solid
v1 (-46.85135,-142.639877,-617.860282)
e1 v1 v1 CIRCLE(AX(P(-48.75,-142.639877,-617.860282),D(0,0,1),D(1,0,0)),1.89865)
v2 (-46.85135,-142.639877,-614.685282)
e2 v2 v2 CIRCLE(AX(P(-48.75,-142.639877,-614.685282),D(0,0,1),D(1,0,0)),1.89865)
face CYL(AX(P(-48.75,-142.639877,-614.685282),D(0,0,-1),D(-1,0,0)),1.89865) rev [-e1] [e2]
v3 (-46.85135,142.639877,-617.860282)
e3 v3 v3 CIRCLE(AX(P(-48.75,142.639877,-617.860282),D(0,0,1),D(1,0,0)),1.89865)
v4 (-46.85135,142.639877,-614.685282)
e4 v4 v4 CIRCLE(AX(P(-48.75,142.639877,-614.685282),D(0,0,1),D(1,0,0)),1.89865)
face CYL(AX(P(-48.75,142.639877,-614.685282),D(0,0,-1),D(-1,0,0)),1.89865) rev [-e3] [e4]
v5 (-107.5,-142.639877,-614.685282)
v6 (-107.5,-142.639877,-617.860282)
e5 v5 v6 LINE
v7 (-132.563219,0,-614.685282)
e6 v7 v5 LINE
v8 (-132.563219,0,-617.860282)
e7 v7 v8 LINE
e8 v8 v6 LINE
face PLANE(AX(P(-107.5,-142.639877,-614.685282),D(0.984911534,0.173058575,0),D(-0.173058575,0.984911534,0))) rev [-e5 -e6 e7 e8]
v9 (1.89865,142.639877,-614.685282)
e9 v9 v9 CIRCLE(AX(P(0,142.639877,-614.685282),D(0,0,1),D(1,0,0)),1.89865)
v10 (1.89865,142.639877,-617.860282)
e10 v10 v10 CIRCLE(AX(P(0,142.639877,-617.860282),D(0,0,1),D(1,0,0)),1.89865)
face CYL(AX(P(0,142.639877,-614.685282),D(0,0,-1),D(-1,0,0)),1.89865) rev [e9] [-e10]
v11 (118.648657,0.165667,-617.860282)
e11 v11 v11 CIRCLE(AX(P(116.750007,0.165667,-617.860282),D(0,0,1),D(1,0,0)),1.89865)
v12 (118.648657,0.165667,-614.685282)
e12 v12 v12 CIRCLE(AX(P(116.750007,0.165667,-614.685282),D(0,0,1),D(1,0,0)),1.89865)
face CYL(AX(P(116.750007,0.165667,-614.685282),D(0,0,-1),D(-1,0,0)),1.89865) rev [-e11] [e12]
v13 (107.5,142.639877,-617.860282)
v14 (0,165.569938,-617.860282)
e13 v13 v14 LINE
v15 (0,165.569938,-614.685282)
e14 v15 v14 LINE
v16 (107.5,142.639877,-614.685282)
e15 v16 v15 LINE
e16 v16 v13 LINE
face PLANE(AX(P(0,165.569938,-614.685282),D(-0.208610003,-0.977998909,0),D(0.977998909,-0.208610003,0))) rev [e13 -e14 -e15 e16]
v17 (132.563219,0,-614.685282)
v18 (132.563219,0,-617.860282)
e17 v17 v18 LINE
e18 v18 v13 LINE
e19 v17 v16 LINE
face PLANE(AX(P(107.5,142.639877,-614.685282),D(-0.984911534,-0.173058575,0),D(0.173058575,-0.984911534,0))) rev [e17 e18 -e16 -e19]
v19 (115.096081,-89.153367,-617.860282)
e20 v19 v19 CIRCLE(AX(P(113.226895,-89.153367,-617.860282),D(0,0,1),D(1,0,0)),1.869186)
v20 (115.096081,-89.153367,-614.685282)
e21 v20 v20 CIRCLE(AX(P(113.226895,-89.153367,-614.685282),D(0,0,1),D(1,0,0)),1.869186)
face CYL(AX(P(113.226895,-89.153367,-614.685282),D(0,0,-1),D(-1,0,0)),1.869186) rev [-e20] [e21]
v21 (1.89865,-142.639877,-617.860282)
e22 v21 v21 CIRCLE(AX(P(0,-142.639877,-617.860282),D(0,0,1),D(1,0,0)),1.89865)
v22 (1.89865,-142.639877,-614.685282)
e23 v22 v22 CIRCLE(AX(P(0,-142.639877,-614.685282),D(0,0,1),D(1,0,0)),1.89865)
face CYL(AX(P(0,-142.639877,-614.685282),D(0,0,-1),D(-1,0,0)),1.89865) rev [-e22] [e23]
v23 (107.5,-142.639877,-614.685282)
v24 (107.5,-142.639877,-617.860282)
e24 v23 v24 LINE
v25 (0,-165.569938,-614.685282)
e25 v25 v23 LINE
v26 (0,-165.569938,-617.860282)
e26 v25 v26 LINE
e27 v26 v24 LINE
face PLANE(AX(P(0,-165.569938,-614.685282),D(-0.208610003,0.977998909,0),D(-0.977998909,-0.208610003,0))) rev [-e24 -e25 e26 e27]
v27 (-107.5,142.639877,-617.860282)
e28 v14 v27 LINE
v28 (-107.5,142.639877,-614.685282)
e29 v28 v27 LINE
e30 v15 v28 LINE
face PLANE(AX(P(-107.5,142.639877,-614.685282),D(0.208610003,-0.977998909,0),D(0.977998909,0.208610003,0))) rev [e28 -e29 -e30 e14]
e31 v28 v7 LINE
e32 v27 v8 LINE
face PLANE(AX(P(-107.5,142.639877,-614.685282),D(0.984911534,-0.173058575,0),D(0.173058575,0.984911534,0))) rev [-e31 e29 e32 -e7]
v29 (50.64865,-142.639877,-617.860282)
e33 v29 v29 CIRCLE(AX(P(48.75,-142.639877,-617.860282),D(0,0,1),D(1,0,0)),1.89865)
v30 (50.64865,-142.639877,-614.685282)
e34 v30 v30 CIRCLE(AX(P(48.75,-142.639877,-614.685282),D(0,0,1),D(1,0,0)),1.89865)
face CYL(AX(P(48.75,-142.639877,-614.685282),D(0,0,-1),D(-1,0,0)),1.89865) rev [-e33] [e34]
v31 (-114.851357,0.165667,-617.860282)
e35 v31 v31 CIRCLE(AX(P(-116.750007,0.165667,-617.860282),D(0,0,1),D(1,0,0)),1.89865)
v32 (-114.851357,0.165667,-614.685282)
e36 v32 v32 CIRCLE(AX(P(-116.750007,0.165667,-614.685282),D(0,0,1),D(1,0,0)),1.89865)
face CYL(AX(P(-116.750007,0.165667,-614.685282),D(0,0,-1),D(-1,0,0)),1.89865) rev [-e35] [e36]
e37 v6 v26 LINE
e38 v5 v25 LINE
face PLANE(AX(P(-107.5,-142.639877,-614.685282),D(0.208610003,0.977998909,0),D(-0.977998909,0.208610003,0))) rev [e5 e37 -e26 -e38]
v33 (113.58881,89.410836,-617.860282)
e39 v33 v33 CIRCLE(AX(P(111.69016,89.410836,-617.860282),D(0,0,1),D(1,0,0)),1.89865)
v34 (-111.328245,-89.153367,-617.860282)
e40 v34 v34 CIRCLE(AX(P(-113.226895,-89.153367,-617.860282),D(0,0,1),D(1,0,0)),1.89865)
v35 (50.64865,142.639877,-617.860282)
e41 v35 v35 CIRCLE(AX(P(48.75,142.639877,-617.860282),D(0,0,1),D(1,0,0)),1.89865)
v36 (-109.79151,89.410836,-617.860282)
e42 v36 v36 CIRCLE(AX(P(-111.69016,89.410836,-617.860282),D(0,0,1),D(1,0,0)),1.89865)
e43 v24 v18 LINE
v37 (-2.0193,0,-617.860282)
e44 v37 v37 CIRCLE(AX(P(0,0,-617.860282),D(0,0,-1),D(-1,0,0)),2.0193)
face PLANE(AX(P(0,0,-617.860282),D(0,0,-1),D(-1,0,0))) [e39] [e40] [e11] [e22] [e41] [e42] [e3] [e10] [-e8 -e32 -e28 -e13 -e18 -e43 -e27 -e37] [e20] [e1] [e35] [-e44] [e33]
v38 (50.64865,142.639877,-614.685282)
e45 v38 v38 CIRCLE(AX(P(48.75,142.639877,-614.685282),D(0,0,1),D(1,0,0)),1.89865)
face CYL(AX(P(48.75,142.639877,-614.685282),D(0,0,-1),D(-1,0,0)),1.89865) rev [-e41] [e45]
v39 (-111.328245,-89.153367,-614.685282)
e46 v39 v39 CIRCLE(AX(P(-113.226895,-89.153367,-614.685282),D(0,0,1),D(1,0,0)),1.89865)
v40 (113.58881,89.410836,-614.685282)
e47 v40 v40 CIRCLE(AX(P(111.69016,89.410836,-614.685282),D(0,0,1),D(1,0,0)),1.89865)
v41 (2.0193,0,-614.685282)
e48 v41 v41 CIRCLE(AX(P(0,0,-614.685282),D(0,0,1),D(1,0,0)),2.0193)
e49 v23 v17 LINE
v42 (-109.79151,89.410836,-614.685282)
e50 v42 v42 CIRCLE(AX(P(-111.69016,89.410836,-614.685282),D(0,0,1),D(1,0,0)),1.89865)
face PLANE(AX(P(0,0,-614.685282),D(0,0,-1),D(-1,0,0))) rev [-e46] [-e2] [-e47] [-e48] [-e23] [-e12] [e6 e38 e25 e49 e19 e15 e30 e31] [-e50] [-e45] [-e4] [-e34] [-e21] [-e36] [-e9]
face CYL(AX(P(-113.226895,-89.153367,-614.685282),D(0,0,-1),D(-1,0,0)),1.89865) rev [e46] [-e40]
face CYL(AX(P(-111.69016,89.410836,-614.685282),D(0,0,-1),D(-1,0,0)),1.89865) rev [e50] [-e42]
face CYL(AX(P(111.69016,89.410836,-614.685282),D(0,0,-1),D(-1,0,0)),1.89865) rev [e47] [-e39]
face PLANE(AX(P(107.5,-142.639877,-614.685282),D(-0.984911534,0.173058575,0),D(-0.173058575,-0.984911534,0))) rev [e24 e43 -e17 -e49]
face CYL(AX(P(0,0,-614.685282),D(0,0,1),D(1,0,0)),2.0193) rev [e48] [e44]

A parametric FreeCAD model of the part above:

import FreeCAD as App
import Part
import Sketcher
from FreeCAD import Vector
Q = App.Units.Quantity


def add_polygon(sketch, points):
    """Adds a closed chain of lines whose ends are joined by coincident constraints."""
    first, n = sketch.GeometryCount, len(points)
    for a, b in zip(points, points[1:] + points[:1]):
        sketch.addGeometry(Part.LineSegment(App.Vector(*a, 0), App.Vector(*b, 0)), False)
    for i in range(n):
        sketch.addConstraint(Sketcher.Constraint("Coincident", first + i, 2, first + (i + 1) % n, 1))

doc = App.newDocument("Part")
params = doc.addObject("Spreadsheet::Sheet", "Params")
for row, (alias, value) in enumerate([
    ("pad1_length", "0.125 in"),
    ("sketch2_diameter", "0.159 in"),
    ("hole_diameter", "0.159 in"),
], start=1):
    params.set(f"A{row}", alias)
    params.set(f"B{row}", "=" + value)
    params.setAlias(f"B{row}", alias)

body = doc.addObject("PartDesign::Body", "Body")

# Sketch on XY plane
sketch1 = doc.addObject("Sketcher::SketchObject", "Sketch")
body.addObject(sketch1)
sketch1.AttachmentSupport = (doc.XY_Plane, [""])
sketch1.MapMode = "FlatFace"
sketch1.AttachmentOffset = App.Placement(Vector(0, 0, -617.860282), App.Rotation())
add_polygon(sketch1, [(-107.5, 142.639877), (-132.563219, 0), (-107.5, -142.639877), (0, -165.569938), (107.5, -142.639877), (132.563219, 0), (107.5, 142.639877), (0, 165.569938)])  # lines 0-7
sketch1.addGeometry(Part.Circle(Vector(-113.226895, -89.153367, 0), Vector(0, 0, 1), 1.89865), False)  # 8
sketch1.addGeometry(Part.Circle(Vector(-48.75, -142.639877, 0), Vector(0, 0, 1), 1.89865), False)  # 9
sketch1.addGeometry(Part.Circle(Vector(0, -142.639877, 0), Vector(0, 0, 1), 1.89865), False)  # 10
sketch1.addGeometry(Part.Circle(Vector(48.75, -142.639877, 0), Vector(0, 0, 1), 1.89865), False)  # 11
sketch1.addGeometry(Part.Circle(Vector(113.226895, -89.153367, 0), Vector(0, 0, 1), 1.869186), False)  # 12
sketch1.addGeometry(Part.Circle(Vector(-116.750007, 0.165667, 0), Vector(0, 0, 1), 1.89865), False)  # 13
sketch1.addGeometry(Part.Circle(Vector(-111.69016, 89.410836, 0), Vector(0, 0, 1), 1.89865), False)  # 14
sketch1.addGeometry(Part.Circle(Vector(-48.75, 142.639877, 0), Vector(0, 0, 1), 1.89865), False)  # 15
sketch1.addGeometry(Part.Circle(Vector(0, 142.639877, 0), Vector(0, 0, 1), 1.89865), False)  # 16
sketch1.addGeometry(Part.Circle(Vector(116.750007, 0.165667, 0), Vector(0, 0, 1), 1.89865), False)  # 17
sketch1.addGeometry(Part.Circle(Vector(48.75, 142.639877, 0), Vector(0, 0, 1), 1.89865), False)  # 18
sketch1.addGeometry(Part.Circle(Vector(111.69016, 89.410836, 0), Vector(0, 0, 1), 1.89865), False)  # 19
sketch1.addConstraint([
    Sketcher.Constraint("Equal", 8, 9),
    Sketcher.Constraint("Equal", 9, 10),
    Sketcher.Constraint("Equal", 10, 11),
    Sketcher.Constraint("Equal", 11, 13),
    Sketcher.Constraint("Equal", 13, 14),
    Sketcher.Constraint("Equal", 14, 15),
    Sketcher.Constraint("Equal", 15, 16),
    Sketcher.Constraint("Equal", 16, 17),
    Sketcher.Constraint("Equal", 17, 18),
    Sketcher.Constraint("Equal", 18, 19),
    Sketcher.Constraint("Symmetric", 11, 3, 15, 3, -1, 1),
    Sketcher.Constraint("Symmetric", 10, 3, 16, 3, -1, 1),
    Sketcher.Constraint("Symmetric", 9, 3, 18, 3, -1, 1),
    Sketcher.Constraint("Symmetric", 0, 2, 4, 2, -1, 1),
    Sketcher.Constraint("Symmetric", 1, 2, 5, 2, -1, 1),
    Sketcher.Constraint("Symmetric", 2, 2, 6, 2, -1, 1),
    Sketcher.Constraint("Symmetric", 3, 2, 7, 2, -1, 1),
    Sketcher.Constraint("Symmetric", 9, 3, 11, 3, -2),
    Sketcher.Constraint("Symmetric", 8, 3, 12, 3, -2),
    Sketcher.Constraint("Symmetric", 13, 3, 17, 3, -2),
    Sketcher.Constraint("Symmetric", 14, 3, 19, 3, -2),
    Sketcher.Constraint("Symmetric", 1, 2, 3, 2, -2),
    Sketcher.Constraint("PointOnObject", 10, 3, -2),
    Sketcher.Constraint("PointOnObject", 0, 2, -1),
    Sketcher.Constraint("PointOnObject", 2, 2, -2),
    Sketcher.Constraint("Horizontal", 9, 3, 10, 3),
    Sketcher.Constraint("Horizontal", 11, 3, 1, 2),
    Sketcher.Constraint("Diameter", 8, Q("0.1495 in")),
    Sketcher.Constraint("Diameter", 12, Q("3.738372 mm")),
    Sketcher.Constraint("DistanceX", 9, 3, -1, 1, Q("48.75 mm")),
    Sketcher.Constraint("DistanceX", 1, 2, -1, 1, Q("107.5 mm")),
    Sketcher.Constraint("DistanceX", 14, 3, -1, 1, Q("111.69016 mm")),
    Sketcher.Constraint("DistanceX", 0, 2, -1, 1, Q("132.563219 mm")),
    Sketcher.Constraint("DistanceY", 2, 2, -1, 1, Q("165.569938 mm")),
    Sketcher.Constraint("DistanceY", 9, 3, 8, 3, Q("53.486509 mm")),
    Sketcher.Constraint("DistanceX", 8, 3, 12, 3, Q("226.453791 mm")),
    Sketcher.Constraint("DistanceX", 13, 3, 8, 3, Q("3.523112 mm")),
    Sketcher.Constraint("DistanceY", 13, 3, 14, 3, Q("89.245169 mm")),
    Sketcher.Constraint("DistanceY", 14, 3, 15, 3, Q("53.229041 mm")),
    Sketcher.Constraint("DistanceY", 2, 2, 10, 3, Q("22.930062 mm")),
])
pad1 = doc.addObject("PartDesign::Pad", "Pad")
body.addObject(pad1)
pad1.Profile = sketch1
pad1.setExpression("Length", "Params.pad1_length")

# Sketch on XY plane
sketch2 = doc.addObject("Sketcher::SketchObject", "Sketch001")
body.addObject(sketch2)
sketch2.AttachmentSupport = (doc.XY_Plane, [""])
sketch2.MapMode = "FlatFace"
sketch2.AttachmentOffset = App.Placement(Vector(0, 0, -614.685282), App.Rotation())
sketch2.addGeometry(Part.Circle(Vector(0, 0, 0), Vector(0, 0, 1), 2.0193), False)
sketch2.addConstraint([
    Sketcher.Constraint("Coincident", 0, 3, -1, 1),
    Sketcher.Constraint("Diameter", 0, Q("0.159 in")),
])
sketch2.setExpression("Constraints[1]", "Params.sketch2_diameter")
doc.recompute()
hole = doc.addObject("PartDesign::Hole", "Hole")
body.addObject(hole)
hole.Profile = sketch2
hole.ThreadType = "None"
hole.setExpression("Diameter", "Params.hole_diameter")
hole.DepthType = "ThroughAll"

doc.recompute()
